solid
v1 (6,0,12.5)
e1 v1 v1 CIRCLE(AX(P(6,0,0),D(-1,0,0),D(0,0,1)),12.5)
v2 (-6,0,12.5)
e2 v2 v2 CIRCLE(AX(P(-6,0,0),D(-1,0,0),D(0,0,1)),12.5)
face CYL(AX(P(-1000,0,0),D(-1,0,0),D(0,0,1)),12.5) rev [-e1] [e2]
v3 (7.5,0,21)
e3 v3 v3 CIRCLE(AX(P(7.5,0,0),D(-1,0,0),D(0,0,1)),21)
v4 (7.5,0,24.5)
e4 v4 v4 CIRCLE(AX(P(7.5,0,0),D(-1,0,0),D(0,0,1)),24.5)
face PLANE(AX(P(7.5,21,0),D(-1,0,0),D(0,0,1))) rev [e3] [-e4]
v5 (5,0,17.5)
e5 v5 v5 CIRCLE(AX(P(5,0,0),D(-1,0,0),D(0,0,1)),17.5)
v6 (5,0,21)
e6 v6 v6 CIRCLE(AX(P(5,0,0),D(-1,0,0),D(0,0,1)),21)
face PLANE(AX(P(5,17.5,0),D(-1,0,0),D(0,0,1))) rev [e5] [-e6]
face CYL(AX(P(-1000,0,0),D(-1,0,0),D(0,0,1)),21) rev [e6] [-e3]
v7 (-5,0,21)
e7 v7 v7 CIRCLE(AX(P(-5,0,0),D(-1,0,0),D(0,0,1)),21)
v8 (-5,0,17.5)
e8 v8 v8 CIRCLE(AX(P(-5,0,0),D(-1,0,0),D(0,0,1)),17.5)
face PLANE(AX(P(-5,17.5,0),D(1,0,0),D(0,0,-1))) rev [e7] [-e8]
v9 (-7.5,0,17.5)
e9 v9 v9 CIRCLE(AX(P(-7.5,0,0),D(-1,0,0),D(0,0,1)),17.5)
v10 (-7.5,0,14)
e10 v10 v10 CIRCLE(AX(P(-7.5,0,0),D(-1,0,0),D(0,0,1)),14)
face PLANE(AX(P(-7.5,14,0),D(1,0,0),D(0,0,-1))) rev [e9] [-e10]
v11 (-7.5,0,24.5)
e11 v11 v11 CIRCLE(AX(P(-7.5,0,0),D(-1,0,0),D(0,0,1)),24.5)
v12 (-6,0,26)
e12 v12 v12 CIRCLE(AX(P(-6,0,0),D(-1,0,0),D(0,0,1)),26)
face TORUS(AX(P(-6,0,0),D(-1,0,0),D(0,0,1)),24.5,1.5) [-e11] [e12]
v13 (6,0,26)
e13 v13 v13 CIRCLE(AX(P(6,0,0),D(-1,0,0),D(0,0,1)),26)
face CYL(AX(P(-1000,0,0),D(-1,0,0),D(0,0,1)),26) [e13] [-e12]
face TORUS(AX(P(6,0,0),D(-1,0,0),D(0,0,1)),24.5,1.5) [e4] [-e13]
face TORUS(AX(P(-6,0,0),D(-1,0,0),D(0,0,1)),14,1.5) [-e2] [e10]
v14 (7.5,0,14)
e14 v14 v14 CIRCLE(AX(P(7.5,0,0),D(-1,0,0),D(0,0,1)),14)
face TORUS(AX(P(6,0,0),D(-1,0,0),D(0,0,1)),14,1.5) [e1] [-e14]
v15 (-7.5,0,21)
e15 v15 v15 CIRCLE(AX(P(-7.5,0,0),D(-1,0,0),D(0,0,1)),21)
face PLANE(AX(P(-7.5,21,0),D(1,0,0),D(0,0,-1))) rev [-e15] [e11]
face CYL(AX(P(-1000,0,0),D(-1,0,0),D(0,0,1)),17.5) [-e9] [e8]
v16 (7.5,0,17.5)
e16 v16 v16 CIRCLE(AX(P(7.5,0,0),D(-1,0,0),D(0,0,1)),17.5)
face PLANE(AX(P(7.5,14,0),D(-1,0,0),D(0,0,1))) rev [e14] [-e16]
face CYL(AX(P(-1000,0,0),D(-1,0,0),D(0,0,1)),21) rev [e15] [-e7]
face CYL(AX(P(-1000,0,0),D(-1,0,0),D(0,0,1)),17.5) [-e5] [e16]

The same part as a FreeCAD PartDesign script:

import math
import FreeCAD as App
import Part
import Sketcher

doc = App.newDocument("Part")
params = doc.addObject("Spreadsheet::Sheet", "Params")
for row, (alias, value) in enumerate([
    ("sketch1_radius", "1.5 mm"),
    ("sketch1_width", "12 mm"),
    ("sketch1_width2", "2.5 mm"),
    ("sketch1_height", "3.5 mm"),
    ("revolution_angle", "360 deg"),
], start=1):
    params.set(f"A{row}", alias)
    params.set(f"B{row}", "=" + value)
    params.setAlias(f"B{row}", alias)

body = doc.addObject("PartDesign::Body", "Body")

sketch1 = doc.addObject("Sketcher::SketchObject", "Sketch")
body.addObject(sketch1)
sketch1.AttachmentSupport = (doc.XY_Plane, [""])
sketch1.MapMode = "FlatFace"
sketch1.addGeometry([
    Part.LineSegment(App.Vector(-6, 12.5, 0), App.Vector(6, 12.5, 0)),
    Part.ArcOfCircle(Part.Circle(App.Vector(6, 14, 0), App.Vector(0, 0, 1), 1.5), math.radians(-90), math.radians(0)),
    Part.LineSegment(App.Vector(7.5, 14, 0), App.Vector(7.5, 17.5, 0)),
    Part.LineSegment(App.Vector(7.5, 17.5, 0), App.Vector(5, 17.5, 0)),
    Part.LineSegment(App.Vector(5, 17.5, 0), App.Vector(5, 21, 0)),
    Part.LineSegment(App.Vector(5, 21, 0), App.Vector(7.5, 21, 0)),
    Part.LineSegment(App.Vector(7.5, 21, 0), App.Vector(7.5, 24.5, 0)),
    Part.ArcOfCircle(Part.Circle(App.Vector(6, 24.5, 0), App.Vector(0, 0, 1), 1.5), math.radians(0), math.radians(90)),
    Part.LineSegment(App.Vector(6, 26, 0), App.Vector(-6, 26, 0)),
    Part.ArcOfCircle(Part.Circle(App.Vector(-6, 24.5, 0), App.Vector(0, 0, 1), 1.5), math.radians(90), math.radians(180)),
    Part.LineSegment(App.Vector(-7.5, 24.5, 0), App.Vector(-7.5, 21, 0)),
    Part.LineSegment(App.Vector(-7.5, 21, 0), App.Vector(-5, 21, 0)),
    Part.LineSegment(App.Vector(-5, 21, 0), App.Vector(-5, 17.5, 0)),
    Part.LineSegment(App.Vector(-5, 17.5, 0), App.Vector(-7.5, 17.5, 0)),
    Part.LineSegment(App.Vector(-7.5, 17.5, 0), App.Vector(-7.5, 14, 0)),
    Part.ArcOfCircle(Part.Circle(App.Vector(-6, 14, 0), App.Vector(0, 0, 1), 1.5), math.radians(180), math.radians(270)),
], False)
sketch1.addConstraint([
    Sketcher.Constraint("Tangent", 0, 2, 1, 1),
    Sketcher.Constraint("Tangent", 1, 2, 2, 1),
    Sketcher.Constraint("Coincident", 2, 2, 3, 1),
    Sketcher.Constraint("Coincident", 3, 2, 4, 1),
    Sketcher.Constraint("Coincident", 4, 2, 5, 1),
    Sketcher.Constraint("Coincident", 5, 2, 6, 1),
    Sketcher.Constraint("Tangent", 6, 2, 7, 1),
    Sketcher.Constraint("Tangent", 7, 2, 8, 1),
    Sketcher.Constraint("Tangent", 8, 2, 9, 1),
    Sketcher.Constraint("Tangent", 9, 2, 10, 1),
    Sketcher.Constraint("Coincident", 10, 2, 11, 1),
    Sketcher.Constraint("Coincident", 11, 2, 12, 1),
    Sketcher.Constraint("Coincident", 12, 2, 13, 1),
    Sketcher.Constraint("Coincident", 13, 2, 14, 1),
    Sketcher.Constraint("Tangent", 14, 2, 15, 1),
    Sketcher.Constraint("Tangent", 15, 2, 0, 1),
    Sketcher.Constraint("Horizontal", 0),
    Sketcher.Constraint("Vertical", 2),
    Sketcher.Constraint("Horizontal", 3),
    Sketcher.Constraint("Vertical", 4),
    Sketcher.Constraint("Horizontal", 5),
    Sketcher.Constraint("Vertical", 6),
    Sketcher.Constraint("Horizontal", 8),
    Sketcher.Constraint("Vertical", 10),
    Sketcher.Constraint("Horizontal", 11),
    Sketcher.Constraint("Vertical", 12),
    Sketcher.Constraint("Horizontal", 13),
    Sketcher.Constraint("Vertical", 14),
    Sketcher.Constraint("Equal", 1, 7),
    Sketcher.Constraint("Equal", 7, 9),
    Sketcher.Constraint("Equal", 9, 15),
    Sketcher.Constraint("Symmetric", 5, 2, 10, 2, -2),
    Sketcher.Constraint("Symmetric", 3, 2, 12, 2, -2),
    Sketcher.Constraint("Vertical", 1, 3, 7, 3),
    Sketcher.Constraint("Vertical", 9, 3, 15, 3),
    Sketcher.Constraint("Equal", 2, 4),
    Sketcher.Constraint("Equal", 4, 6),
    Sketcher.Constraint("Radius", 1, 1.5),
    Sketcher.Constraint("DistanceX", 0, 1, 0, 2, 12.0),
    Sketcher.Constraint("DistanceX", 3, 2, 3, 1, 2.5),
    Sketcher.Constraint("DistanceY", 2, 1, 2, 2, 3.5),
    Sketcher.Constraint("DistanceY", -1, 1, 1, 3, 14.0),
])
sketch1.setExpression("Constraints[37]", "Params.sketch1_radius")
sketch1.setExpression("Constraints[38]", "Params.sketch1_width")
sketch1.setExpression("Constraints[39]", "Params.sketch1_width2")
sketch1.setExpression("Constraints[40]", "Params.sketch1_height")
revolution = doc.addObject("PartDesign::Revolution", "Revolution")
body.addObject(revolution)
revolution.Profile = sketch1
revolution.ReferenceAxis = (sketch1, ["H_Axis"])
revolution.setExpression("Angle", "Params.revolution_angle")

doc.recompute()
